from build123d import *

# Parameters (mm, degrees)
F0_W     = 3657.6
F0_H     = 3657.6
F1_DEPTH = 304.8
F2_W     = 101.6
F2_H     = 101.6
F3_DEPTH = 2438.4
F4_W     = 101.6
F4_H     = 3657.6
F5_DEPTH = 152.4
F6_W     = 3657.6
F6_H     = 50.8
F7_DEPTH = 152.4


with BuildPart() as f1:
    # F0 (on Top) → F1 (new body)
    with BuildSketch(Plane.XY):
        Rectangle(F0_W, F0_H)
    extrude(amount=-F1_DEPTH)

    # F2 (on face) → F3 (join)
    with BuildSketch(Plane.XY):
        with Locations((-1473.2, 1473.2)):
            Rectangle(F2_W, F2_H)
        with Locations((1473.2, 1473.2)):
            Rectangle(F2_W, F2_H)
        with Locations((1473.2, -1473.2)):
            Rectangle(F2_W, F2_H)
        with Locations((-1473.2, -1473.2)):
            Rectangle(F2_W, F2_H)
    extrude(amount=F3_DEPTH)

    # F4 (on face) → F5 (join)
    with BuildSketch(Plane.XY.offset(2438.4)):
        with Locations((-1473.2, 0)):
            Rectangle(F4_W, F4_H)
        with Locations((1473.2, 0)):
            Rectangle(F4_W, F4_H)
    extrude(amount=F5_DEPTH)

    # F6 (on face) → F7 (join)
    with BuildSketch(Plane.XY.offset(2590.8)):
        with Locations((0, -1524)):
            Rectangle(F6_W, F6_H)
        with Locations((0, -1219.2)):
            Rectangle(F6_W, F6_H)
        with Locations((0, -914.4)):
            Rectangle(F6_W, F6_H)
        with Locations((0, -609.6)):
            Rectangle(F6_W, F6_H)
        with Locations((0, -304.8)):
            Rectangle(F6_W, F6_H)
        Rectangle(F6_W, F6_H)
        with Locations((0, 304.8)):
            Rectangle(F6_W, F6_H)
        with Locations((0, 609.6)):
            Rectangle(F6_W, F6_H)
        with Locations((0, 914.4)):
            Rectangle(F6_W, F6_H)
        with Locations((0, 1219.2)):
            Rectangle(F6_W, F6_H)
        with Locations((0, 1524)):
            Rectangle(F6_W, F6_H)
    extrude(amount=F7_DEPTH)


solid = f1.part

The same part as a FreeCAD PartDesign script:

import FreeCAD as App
import Part
import Sketcher

V = App.Vector
Q = App.Units.Quantity

doc = App.newDocument("Part")
body = doc.addObject("PartDesign::Body", "Body")

sketch1 = doc.addObject("Sketcher::SketchObject", "Sketch")
body.addObject(sketch1)
sketch1.AttachmentSupport = (doc.XY_Plane, [""])
sketch1.MapMode = "FlatFace"
sketch1.addGeometry([
    Part.LineSegment(V(-1829, 1829, 0), V(-1829, -1829, 0)),
    Part.LineSegment(V(-1829, -1829, 0), V(1829, -1829, 0)),
    Part.LineSegment(V(1829, -1829, 0), V(1829, 1829, 0)),
    Part.LineSegment(V(1829, 1829, 0), V(-1829, 1829, 0)),
], False)
sketch1.addConstraint([
    Sketcher.Constraint("Coincident", 0, 2, 1, 1),
    Sketcher.Constraint("Coincident", 1, 2, 2, 1),
    Sketcher.Constraint("Coincident", 2, 2, 3, 1),
    Sketcher.Constraint("Coincident", 3, 2, 0, 1),
    Sketcher.Constraint("Vertical", 0),
    Sketcher.Constraint("Horizontal", 1),
    Sketcher.Constraint("Vertical", 2),
    Sketcher.Constraint("Horizontal", 3),
    Sketcher.Constraint("Symmetric", 0, 2, 2, 2, -1, 1),
    Sketcher.Constraint("Equal", 3, 0),
    Sketcher.Constraint("DistanceX", 1, 1, 1, 2, Q("144 in")),
])
pad1 = doc.addObject("PartDesign::Pad", "Pad")
body.addObject(pad1)
pad1.Profile = sketch1
pad1.Length = Q("12 in")
pad1.Reversed = True

sketch2 = doc.addObject("Sketcher::SketchObject", "Sketch001")
body.addObject(sketch2)
sketch2.AttachmentSupport = (doc.XY_Plane, [""])
sketch2.MapMode = "FlatFace"
sketch2.addGeometry([
    Part.LineSegment(V(-1524, 1524, 0), V(-1524, 1422, 0)),
    Part.LineSegment(V(-1524, 1422, 0), V(-1422, 1422, 0)),
    Part.LineSegment(V(-1422, 1422, 0), V(-1422, 1524, 0)),
    Part.LineSegment(V(-1422, 1524, 0), V(-1524, 1524, 0)),
    Part.LineSegment(V(1422, 1524, 0), V(1422, 1422, 0)),
    Part.LineSegment(V(1422, 1422, 0), V(1524, 1422, 0)),
    Part.LineSegment(V(1524, 1422, 0), V(1524, 1524, 0)),
    Part.LineSegment(V(1524, 1524, 0), V(1422, 1524, 0)),
    Part.LineSegment(V(1422, -1422, 0), V(1422, -1524, 0)),
    Part.LineSegment(V(1422, -1524, 0), V(1524, -1524, 0)),
    Part.LineSegment(V(1524, -1524, 0), V(1524, -1422, 0)),
    Part.LineSegment(V(1524, -1422, 0), V(1422, -1422, 0)),
    Part.LineSegment(V(-1524, -1422, 0), V(-1524, -1524, 0)),
    Part.LineSegment(V(-1524, -1524, 0), V(-1422, -1524, 0)),
    Part.LineSegment(V(-1422, -1524, 0), V(-1422, -1422, 0)),
    Part.LineSegment(V(-1422, -1422, 0), V(-1524, -1422, 0)),
], False)
sketch2.addConstraint([
    Sketcher.Constraint("Coincident", 0, 2, 1, 1),
    Sketcher.Constraint("Coincident", 1, 2, 2, 1),
    Sketcher.Constraint("Coincident", 2, 2, 3, 1),
    Sketcher.Constraint("Coincident", 3, 2, 0, 1),
    Sketcher.Constraint("Coincident", 4, 2, 5, 1),
    Sketcher.Constraint("Coincident", 5, 2, 6, 1),
    Sketcher.Constraint("Coincident", 6, 2, 7, 1),
    Sketcher.Constraint("Coincident", 7, 2, 4, 1),
    Sketcher.Constraint("Coincident", 8, 2, 9, 1),
    Sketcher.Constraint("Coincident", 9, 2, 10, 1),
    Sketcher.Constraint("Coincident", 10, 2, 11, 1),
    Sketcher.Constraint("Coincident", 11, 2, 8, 1),
    Sketcher.Constraint("Coincident", 12, 2, 13, 1),
    Sketcher.Constraint("Coincident", 13, 2, 14, 1),
    Sketcher.Constraint("Coincident", 14, 2, 15, 1),
    Sketcher.Constraint("Coincident", 15, 2, 12, 1),
    Sketcher.Constraint("Vertical", 0),
    Sketcher.Constraint("Horizontal", 1),
    Sketcher.Constraint("Vertical", 2),
    Sketcher.Constraint("Horizontal", 3),
    Sketcher.Constraint("Vertical", 4),
    Sketcher.Constraint("Horizontal", 5),
    Sketcher.Constraint("Vertical", 6),
    Sketcher.Constraint("Horizontal", 7),
    Sketcher.Constraint("Vertical", 8),
    Sketcher.Constraint("Horizontal", 9),
    Sketcher.Constraint("Vertical", 10),
    Sketcher.Constraint("Horizontal", 11),
    Sketcher.Constraint("Vertical", 12),
    Sketcher.Constraint("Horizontal", 13),
    Sketcher.Constraint("Vertical", 14),
    Sketcher.Constraint("Horizontal", 15),
    Sketcher.Constraint("Symmetric", 2, 2, 8, 2, -1, 1),
    Sketcher.Constraint("Symmetric", 0, 2, 10, 2, -1, 1),
    Sketcher.Constraint("Symmetric", 6, 2, 12, 2, -1, 1),
    Sketcher.Constraint("Symmetric", 4, 2, 14, 2, -1, 1),
    Sketcher.Constraint("Symmetric", 1, 2, 4, 2, -2),
    Sketcher.Constraint("Symmetric", 3, 2, 6, 2, -2),
    Sketcher.Constraint("Equal", 15, 0),
    Sketcher.Constraint("DistanceX", 1, 1, 1, 2, Q("4 in")),
    Sketcher.Constraint("DistanceX", 0, 2, -1, 1, Q("60 in")),
    Sketcher.Constraint("DistanceY", -1, 1, 0, 2, Q("56 in")),
])
pad2 = doc.addObject("PartDesign::Pad", "Pad001")
body.addObject(pad2)
pad2.Profile = sketch2
pad2.Length = Q("96 in")

sketch3 = doc.addObject("Sketcher::SketchObject", "Sketch002")
body.addObject(sketch3)
sketch3.AttachmentSupport = (doc.XY_Plane, [""])
sketch3.MapMode = "FlatFace"
sketch3.AttachmentOffset = App.Placement(V(0, 0, 96 * 25.4), App.Rotation())
sketch3.addGeometry([
    Part.LineSegment(V(-1524, 1829, 0), V(-1524, -1829, 0)),
    Part.LineSegment(V(-1524, -1829, 0), V(-1422, -1829, 0)),
    Part.LineSegment(V(-1422, -1829, 0), V(-1422, 1829, 0)),
    Part.LineSegment(V(-1422, 1829, 0), V(-1524, 1829, 0)),
    Part.LineSegment(V(1422, 1829, 0), V(1422, -1829, 0)),
    Part.LineSegment(V(1422, -1829, 0), V(1524, -1829, 0)),
    Part.LineSegment(V(1524, -1829, 0), V(1524, 1829, 0)),
    Part.LineSegment(V(1524, 1829, 0), V(1422, 1829, 0)),
], False)
sketch3.addConstraint([
    Sketcher.Constraint("Coincident", 0, 2, 1, 1),
    Sketcher.Constraint("Coincident", 1, 2, 2, 1),
    Sketcher.Constraint("Coincident", 2, 2, 3, 1),
    Sketcher.Constraint("Coincident", 3, 2, 0, 1),
    Sketcher.Constraint("Coincident", 4, 2, 5, 1),
    Sketcher.Constraint("Coincident", 5, 2, 6, 1),
    Sketcher.Constraint("Coincident", 6, 2, 7, 1),
    Sketcher.Constraint("Coincident", 7, 2, 4, 1),
    Sketcher.Constraint("Vertical", 0),
    Sketcher.Constraint("Horizontal", 1),
    Sketcher.Constraint("Vertical", 2),
    Sketcher.Constraint("Horizontal", 3),
    Sketcher.Constraint("Vertical", 4),
    Sketcher.Constraint("Horizontal", 5),
    Sketcher.Constraint("Vertical", 6),
    Sketcher.Constraint("Horizontal", 7),
    Sketcher.Constraint("Symmetric", 2, 2, 4, 2, -1, 1),
    Sketcher.Constraint("Symmetric", 0, 2, 6, 2, -1, 1),
    Sketcher.Constraint("Horizontal", 1, 2, 4, 2),
    Sketcher.Constraint("DistanceX", 1, 1, 1, 2, Q("4 in")),
    Sketcher.Constraint("DistanceY", 0, 2, 0, 1, Q("144 in")),
    Sketcher.Constraint("DistanceX", 0, 2, -1, 1, Q("60 in")),
])
pad3 = doc.addObject("PartDesign::Pad", "Pad002")
body.addObject(pad3)
pad3.Profile = sketch3
pad3.Length = Q("6 in")

sketch4 = doc.addObject("Sketcher::SketchObject", "Sketch003")
body.addObject(sketch4)
sketch4.AttachmentSupport = (doc.XY_Plane, [""])
sketch4.MapMode = "FlatFace"
sketch4.AttachmentOffset = App.Placement(V(0, 0, 102 * 25.4), App.Rotation())
sketch4.addGeometry([
    Part.LineSegment(V(-1829, -1499, 0), V(-1829, -1549, 0)),
    Part.LineSegment(V(-1829, -1549, 0), V(1829, -1549, 0)),
    Part.LineSegment(V(1829, -1549, 0), V(1829, -1499, 0)),
    Part.LineSegment(V(1829, -1499, 0), V(-1829, -1499, 0)),
    Part.LineSegment(V(-1829, -1194, 0), V(-1829, -1245, 0)),
    Part.LineSegment(V(-1829, -1245, 0), V(1829, -1245, 0)),
    Part.LineSegment(V(1829, -1245, 0), V(1829, -1194, 0)),
    Part.LineSegment(V(1829, -1194, 0), V(-1829, -1194, 0)),
    Part.LineSegment(V(-1829, -889, 0), V(-1829, -940, 0)),
    Part.LineSegment(V(-1829, -940, 0), V(1829, -940, 0)),
    Part.LineSegment(V(1829, -940, 0), V(1829, -889, 0)),
    Part.LineSegment(V(1829, -889, 0), V(-1829, -889, 0)),
    Part.LineSegment(V(-1829, -584, 0), V(-1829, -635, 0)),
    Part.LineSegment(V(-1829, -635, 0), V(1829, -635, 0)),
    Part.LineSegment(V(1829, -635, 0), V(1829, -584, 0)),
    Part.LineSegment(V(1829, -584, 0), V(-1829, -584, 0)),
    Part.LineSegment(V(-1829, -279, 0), V(-1829, -330, 0)),
    Part.LineSegment(V(-1829, -330, 0), V(1829, -330, 0)),
    Part.LineSegment(V(1829, -330, 0), V(1829, -279, 0)),
    Part.LineSegment(V(1829, -279, 0), V(-1829, -279, 0)),
    Part.LineSegment(V(-1829, 25, 0), V(-1829, -25, 0)),
    Part.LineSegment(V(-1829, -25, 0), V(1829, -25, 0)),
    Part.LineSegment(V(1829, -25, 0), V(1829, 25, 0)),
    Part.LineSegment(V(1829, 25, 0), V(-1829, 25, 0)),
    Part.LineSegment(V(-1829, 330, 0), V(-1829, 279, 0)),
    Part.LineSegment(V(-1829, 279, 0), V(1829, 279, 0)),
    Part.LineSegment(V(1829, 279, 0), V(1829, 330, 0)),
    Part.LineSegment(V(1829, 330, 0), V(-1829, 330, 0)),
    Part.LineSegment(V(-1829, 635, 0), V(-1829, 584, 0)),
    Part.LineSegment(V(-1829, 584, 0), V(1829, 584, 0)),
    Part.LineSegment(V(1829, 584, 0), V(1829, 635, 0)),
    Part.LineSegment(V(1829, 635, 0), V(-1829, 635, 0)),
    Part.LineSegment(V(-1829, 940, 0), V(-1829, 889, 0)),
    Part.LineSegment(V(-1829, 889, 0), V(1829, 889, 0)),
    Part.LineSegment(V(1829, 889, 0), V(1829, 940, 0)),
    Part.LineSegment(V(1829, 940, 0), V(-1829, 940, 0)),
    Part.LineSegment(V(-1829, 1245, 0), V(-1829, 1194, 0)),
    Part.LineSegment(V(-1829, 1194, 0), V(1829, 1194, 0)),
    Part.LineSegment(V(1829, 1194, 0), V(1829, 1245, 0)),
    Part.LineSegment(V(1829, 1245, 0), V(-1829, 1245, 0)),
    Part.LineSegment(V(-1829, 1549, 0), V(-1829, 1499, 0)),
    Part.LineSegment(V(-1829, 1499, 0), V(1829, 1499, 0)),
    Part.LineSegment(V(1829, 1499, 0), V(1829, 1549, 0)),
    Part.LineSegment(V(1829, 1549, 0), V(-1829, 1549, 0)),
], False)
sketch4.addConstraint([
    Sketcher.Constraint("Coincident", 0, 2, 1, 1),
    Sketcher.Constraint("Coincident", 1, 2, 2, 1),
    Sketcher.Constraint("Coincident", 2, 2, 3, 1),
    Sketcher.Constraint("Coincident", 3, 2, 0, 1),
    Sketcher.Constraint("Coincident", 4, 2, 5, 1),
    Sketcher.Constraint("Coincident", 5, 2, 6, 1),
    Sketcher.Constraint("Coincident", 6, 2, 7, 1),
    Sketcher.Constraint("Coincident", 7, 2, 4, 1),
    Sketcher.Constraint("Coincident", 8, 2, 9, 1),
    Sketcher.Constraint("Coincident", 9, 2, 10, 1),
    Sketcher.Constraint("Coincident", 10, 2, 11, 1),
    Sketcher.Constraint("Coincident", 11, 2, 8, 1),
    Sketcher.Constraint("Coincident", 12, 2, 13, 1),
    Sketcher.Constraint("Coincident", 13, 2, 14, 1),
    Sketcher.Constraint("Coincident", 14, 2, 15, 1),
    Sketcher.Constraint("Coincident", 15, 2, 12, 1),
    Sketcher.Constraint("Coincident", 16, 2, 17, 1),
    Sketcher.Constraint("Coincident", 17, 2, 18, 1),
    Sketcher.Constraint("Coincident", 18, 2, 19, 1),
    Sketcher.Constraint("Coincident", 19, 2, 16, 1),
    Sketcher.Constraint("Coincident", 20, 2, 21, 1),
    Sketcher.Constraint("Coincident", 21, 2, 22, 1),
    Sketcher.Constraint("Coincident", 22, 2, 23, 1),
    Sketcher.Constraint("Coincident", 23, 2, 20, 1),
    Sketcher.Constraint("Coincident", 24, 2, 25, 1),
    Sketcher.Constraint("Coincident", 25, 2, 26, 1),
    Sketcher.Constraint("Coincident", 26, 2, 27, 1),
    Sketcher.Constraint("Coincident", 27, 2, 24, 1),
    Sketcher.Constraint("Coincident", 28, 2, 29, 1),
    Sketcher.Constraint("Coincident", 29, 2, 30, 1),
    Sketcher.Constraint("Coincident", 30, 2, 31, 1),
    Sketcher.Constraint("Coincident", 31, 2, 28, 1),
    Sketcher.Constraint("Coincident", 32, 2, 33, 1),
    Sketcher.Constraint("Coincident", 33, 2, 34, 1),
    Sketcher.Constraint("Coincident", 34, 2, 35, 1),
    Sketcher.Constraint("Coincident", 35, 2, 32, 1),
    Sketcher.Constraint("Coincident", 36, 2, 37, 1),
    Sketcher.Constraint("Coincident", 37, 2, 38, 1),
    Sketcher.Constraint("Coincident", 38, 2, 39, 1),
    Sketcher.Constraint("Coincident", 39, 2, 36, 1),
    Sketcher.Constraint("Coincident", 40, 2, 41, 1),
    Sketcher.Constraint("Coincident", 41, 2, 42, 1),
    Sketcher.Constraint("Coincident", 42, 2, 43, 1),
    Sketcher.Constraint("Coincident", 43, 2, 40, 1),
    Sketcher.Constraint("Vertical", 0),
    Sketcher.Constraint("Horizontal", 1),
    Sketcher.Constraint("Vertical", 2),
    Sketcher.Constraint("Horizontal", 3),
    Sketcher.Constraint("Vertical", 4),
    Sketcher.Constraint("Horizontal", 5),
    Sketcher.Constraint("Vertical", 6),
    Sketcher.Constraint("Horizontal", 7),
    Sketcher.Constraint("Vertical", 8),
    Sketcher.Constraint("Horizontal", 9),
    Sketcher.Constraint("Vertical", 10),
    Sketcher.Constraint("Horizontal", 11),
    Sketcher.Constraint("Vertical", 12),
    Sketcher.Constraint("Horizontal", 13),
    Sketcher.Constraint("Vertical", 14),
    Sketcher.Constraint("Horizontal", 15),
    Sketcher.Constraint("Vertical", 16),
    Sketcher.Constraint("Horizontal", 17),
    Sketcher.Constraint("Vertical", 18),
    Sketcher.Constraint("Horizontal", 19),
    Sketcher.Constraint("Vertical", 20),
    Sketcher.Constraint("Horizontal", 21),
    Sketcher.Constraint("Vertical", 22),
    Sketcher.Constraint("Horizontal", 23),
    Sketcher.Constraint("Vertical", 24),
    Sketcher.Constraint("Horizontal", 25),
    Sketcher.Constraint("Vertical", 26),
    Sketcher.Constraint("Horizontal", 27),
    Sketcher.Constraint("Vertical", 28),
    Sketcher.Constraint("Horizontal", 29),
    Sketcher.Constraint("Vertical", 30),
    Sketcher.Constraint("Horizontal", 31),
    Sketcher.Constraint("Vertical", 32),
    Sketcher.Constraint("Horizontal", 33),
    Sketcher.Constraint("Vertical", 34),
    Sketcher.Constraint("Horizontal", 35),
    Sketcher.Constraint("Vertical", 36),
    Sketcher.Constraint("Horizontal", 37),
    Sketcher.Constraint("Vertical", 38),
    Sketcher.Constraint("Horizontal", 39),
    Sketcher.Constraint("Vertical", 40),
    Sketcher.Constraint("Horizontal", 41),
    Sketcher.Constraint("Vertical", 42),
    Sketcher.Constraint("Horizontal", 43),
    Sketcher.Constraint("Symmetric", 20, 2, 22, 2, -1, 1),
    Sketcher.Constraint("Symmetric", 18, 2, 24, 2, -1, 1),
    Sketcher.Constraint("Symmetric", 16, 2, 26, 2, -1, 1),
    Sketcher.Constraint("Symmetric", 14, 2, 28, 2, -1, 1),
    Sketcher.Constraint("Symmetric", 12, 2, 30, 2, -1, 1),
    Sketcher.Constraint("Symmetric", 10, 2, 32, 2, -1, 1),
    Sketcher.Constraint("Symmetric", 8, 2, 34, 2, -1, 1),
    Sketcher.Constraint("Symmetric", 6, 2, 36, 2, -1, 1),
    Sketcher.Constraint("Symmetric", 4, 2, 38, 2, -1, 1),
    Sketcher.Constraint("Symmetric", 2, 2, 40, 2, -1, 1),
    Sketcher.Constraint("Symmetric", 0, 2, 42, 2, -1, 1),
    Sketcher.Constraint("Vertical", 3, 2, 4, 2),
    Sketcher.Constraint("Vertical", 2, 2, 5, 2),
    Sketcher.Constraint("Vertical", 7, 2, 8, 2),
    Sketcher.Constraint("Vertical", 6, 2, 9, 2),
    Sketcher.Constraint("Vertical", 11, 2, 12, 2),
    Sketcher.Constraint("Vertical", 10, 2, 13, 2),
    Sketcher.Constraint("Vertical", 15, 2, 16, 2),
    Sketcher.Constraint("Vertical", 14, 2, 17, 2),
    Sketcher.Constraint("Vertical", 19, 2, 20, 2),
    Sketcher.Constraint("Vertical", 18, 2, 21, 2),
    Sketcher.Constraint("Equal", 2, 4),
    Sketcher.Constraint("Equal", 6, 8),
    Sketcher.Constraint("Equal", 10, 12),
    Sketcher.Constraint("Equal", 14, 16),
    Sketcher.Constraint("Equal", 18, 20),
    Sketcher.Constraint("DistanceX", 1, 1, 1, 2, Q("144 in")),
    Sketcher.Constraint("DistanceY", 0, 2, 0, 1, Q("2 in")),
    Sketcher.Constraint("DistanceY", 0, 2, -1, 1, Q("61 in")),
    Sketcher.Constraint("DistanceY", 4, 2, -1, 1, Q("49 in")),
    Sketcher.Constraint("DistanceY", 8, 2, -1, 1, Q("37 in")),
    Sketcher.Constraint("DistanceY", 12, 2, -1, 1, Q("25 in")),
    Sketcher.Constraint("DistanceY", 16, 2, -1, 1, Q("13 in")),
])
pad4 = doc.addObject("PartDesign::Pad", "Pad003")
body.addObject(pad4)
pad4.Profile = sketch4
pad4.Length = Q("6 in")

doc.recompute()
